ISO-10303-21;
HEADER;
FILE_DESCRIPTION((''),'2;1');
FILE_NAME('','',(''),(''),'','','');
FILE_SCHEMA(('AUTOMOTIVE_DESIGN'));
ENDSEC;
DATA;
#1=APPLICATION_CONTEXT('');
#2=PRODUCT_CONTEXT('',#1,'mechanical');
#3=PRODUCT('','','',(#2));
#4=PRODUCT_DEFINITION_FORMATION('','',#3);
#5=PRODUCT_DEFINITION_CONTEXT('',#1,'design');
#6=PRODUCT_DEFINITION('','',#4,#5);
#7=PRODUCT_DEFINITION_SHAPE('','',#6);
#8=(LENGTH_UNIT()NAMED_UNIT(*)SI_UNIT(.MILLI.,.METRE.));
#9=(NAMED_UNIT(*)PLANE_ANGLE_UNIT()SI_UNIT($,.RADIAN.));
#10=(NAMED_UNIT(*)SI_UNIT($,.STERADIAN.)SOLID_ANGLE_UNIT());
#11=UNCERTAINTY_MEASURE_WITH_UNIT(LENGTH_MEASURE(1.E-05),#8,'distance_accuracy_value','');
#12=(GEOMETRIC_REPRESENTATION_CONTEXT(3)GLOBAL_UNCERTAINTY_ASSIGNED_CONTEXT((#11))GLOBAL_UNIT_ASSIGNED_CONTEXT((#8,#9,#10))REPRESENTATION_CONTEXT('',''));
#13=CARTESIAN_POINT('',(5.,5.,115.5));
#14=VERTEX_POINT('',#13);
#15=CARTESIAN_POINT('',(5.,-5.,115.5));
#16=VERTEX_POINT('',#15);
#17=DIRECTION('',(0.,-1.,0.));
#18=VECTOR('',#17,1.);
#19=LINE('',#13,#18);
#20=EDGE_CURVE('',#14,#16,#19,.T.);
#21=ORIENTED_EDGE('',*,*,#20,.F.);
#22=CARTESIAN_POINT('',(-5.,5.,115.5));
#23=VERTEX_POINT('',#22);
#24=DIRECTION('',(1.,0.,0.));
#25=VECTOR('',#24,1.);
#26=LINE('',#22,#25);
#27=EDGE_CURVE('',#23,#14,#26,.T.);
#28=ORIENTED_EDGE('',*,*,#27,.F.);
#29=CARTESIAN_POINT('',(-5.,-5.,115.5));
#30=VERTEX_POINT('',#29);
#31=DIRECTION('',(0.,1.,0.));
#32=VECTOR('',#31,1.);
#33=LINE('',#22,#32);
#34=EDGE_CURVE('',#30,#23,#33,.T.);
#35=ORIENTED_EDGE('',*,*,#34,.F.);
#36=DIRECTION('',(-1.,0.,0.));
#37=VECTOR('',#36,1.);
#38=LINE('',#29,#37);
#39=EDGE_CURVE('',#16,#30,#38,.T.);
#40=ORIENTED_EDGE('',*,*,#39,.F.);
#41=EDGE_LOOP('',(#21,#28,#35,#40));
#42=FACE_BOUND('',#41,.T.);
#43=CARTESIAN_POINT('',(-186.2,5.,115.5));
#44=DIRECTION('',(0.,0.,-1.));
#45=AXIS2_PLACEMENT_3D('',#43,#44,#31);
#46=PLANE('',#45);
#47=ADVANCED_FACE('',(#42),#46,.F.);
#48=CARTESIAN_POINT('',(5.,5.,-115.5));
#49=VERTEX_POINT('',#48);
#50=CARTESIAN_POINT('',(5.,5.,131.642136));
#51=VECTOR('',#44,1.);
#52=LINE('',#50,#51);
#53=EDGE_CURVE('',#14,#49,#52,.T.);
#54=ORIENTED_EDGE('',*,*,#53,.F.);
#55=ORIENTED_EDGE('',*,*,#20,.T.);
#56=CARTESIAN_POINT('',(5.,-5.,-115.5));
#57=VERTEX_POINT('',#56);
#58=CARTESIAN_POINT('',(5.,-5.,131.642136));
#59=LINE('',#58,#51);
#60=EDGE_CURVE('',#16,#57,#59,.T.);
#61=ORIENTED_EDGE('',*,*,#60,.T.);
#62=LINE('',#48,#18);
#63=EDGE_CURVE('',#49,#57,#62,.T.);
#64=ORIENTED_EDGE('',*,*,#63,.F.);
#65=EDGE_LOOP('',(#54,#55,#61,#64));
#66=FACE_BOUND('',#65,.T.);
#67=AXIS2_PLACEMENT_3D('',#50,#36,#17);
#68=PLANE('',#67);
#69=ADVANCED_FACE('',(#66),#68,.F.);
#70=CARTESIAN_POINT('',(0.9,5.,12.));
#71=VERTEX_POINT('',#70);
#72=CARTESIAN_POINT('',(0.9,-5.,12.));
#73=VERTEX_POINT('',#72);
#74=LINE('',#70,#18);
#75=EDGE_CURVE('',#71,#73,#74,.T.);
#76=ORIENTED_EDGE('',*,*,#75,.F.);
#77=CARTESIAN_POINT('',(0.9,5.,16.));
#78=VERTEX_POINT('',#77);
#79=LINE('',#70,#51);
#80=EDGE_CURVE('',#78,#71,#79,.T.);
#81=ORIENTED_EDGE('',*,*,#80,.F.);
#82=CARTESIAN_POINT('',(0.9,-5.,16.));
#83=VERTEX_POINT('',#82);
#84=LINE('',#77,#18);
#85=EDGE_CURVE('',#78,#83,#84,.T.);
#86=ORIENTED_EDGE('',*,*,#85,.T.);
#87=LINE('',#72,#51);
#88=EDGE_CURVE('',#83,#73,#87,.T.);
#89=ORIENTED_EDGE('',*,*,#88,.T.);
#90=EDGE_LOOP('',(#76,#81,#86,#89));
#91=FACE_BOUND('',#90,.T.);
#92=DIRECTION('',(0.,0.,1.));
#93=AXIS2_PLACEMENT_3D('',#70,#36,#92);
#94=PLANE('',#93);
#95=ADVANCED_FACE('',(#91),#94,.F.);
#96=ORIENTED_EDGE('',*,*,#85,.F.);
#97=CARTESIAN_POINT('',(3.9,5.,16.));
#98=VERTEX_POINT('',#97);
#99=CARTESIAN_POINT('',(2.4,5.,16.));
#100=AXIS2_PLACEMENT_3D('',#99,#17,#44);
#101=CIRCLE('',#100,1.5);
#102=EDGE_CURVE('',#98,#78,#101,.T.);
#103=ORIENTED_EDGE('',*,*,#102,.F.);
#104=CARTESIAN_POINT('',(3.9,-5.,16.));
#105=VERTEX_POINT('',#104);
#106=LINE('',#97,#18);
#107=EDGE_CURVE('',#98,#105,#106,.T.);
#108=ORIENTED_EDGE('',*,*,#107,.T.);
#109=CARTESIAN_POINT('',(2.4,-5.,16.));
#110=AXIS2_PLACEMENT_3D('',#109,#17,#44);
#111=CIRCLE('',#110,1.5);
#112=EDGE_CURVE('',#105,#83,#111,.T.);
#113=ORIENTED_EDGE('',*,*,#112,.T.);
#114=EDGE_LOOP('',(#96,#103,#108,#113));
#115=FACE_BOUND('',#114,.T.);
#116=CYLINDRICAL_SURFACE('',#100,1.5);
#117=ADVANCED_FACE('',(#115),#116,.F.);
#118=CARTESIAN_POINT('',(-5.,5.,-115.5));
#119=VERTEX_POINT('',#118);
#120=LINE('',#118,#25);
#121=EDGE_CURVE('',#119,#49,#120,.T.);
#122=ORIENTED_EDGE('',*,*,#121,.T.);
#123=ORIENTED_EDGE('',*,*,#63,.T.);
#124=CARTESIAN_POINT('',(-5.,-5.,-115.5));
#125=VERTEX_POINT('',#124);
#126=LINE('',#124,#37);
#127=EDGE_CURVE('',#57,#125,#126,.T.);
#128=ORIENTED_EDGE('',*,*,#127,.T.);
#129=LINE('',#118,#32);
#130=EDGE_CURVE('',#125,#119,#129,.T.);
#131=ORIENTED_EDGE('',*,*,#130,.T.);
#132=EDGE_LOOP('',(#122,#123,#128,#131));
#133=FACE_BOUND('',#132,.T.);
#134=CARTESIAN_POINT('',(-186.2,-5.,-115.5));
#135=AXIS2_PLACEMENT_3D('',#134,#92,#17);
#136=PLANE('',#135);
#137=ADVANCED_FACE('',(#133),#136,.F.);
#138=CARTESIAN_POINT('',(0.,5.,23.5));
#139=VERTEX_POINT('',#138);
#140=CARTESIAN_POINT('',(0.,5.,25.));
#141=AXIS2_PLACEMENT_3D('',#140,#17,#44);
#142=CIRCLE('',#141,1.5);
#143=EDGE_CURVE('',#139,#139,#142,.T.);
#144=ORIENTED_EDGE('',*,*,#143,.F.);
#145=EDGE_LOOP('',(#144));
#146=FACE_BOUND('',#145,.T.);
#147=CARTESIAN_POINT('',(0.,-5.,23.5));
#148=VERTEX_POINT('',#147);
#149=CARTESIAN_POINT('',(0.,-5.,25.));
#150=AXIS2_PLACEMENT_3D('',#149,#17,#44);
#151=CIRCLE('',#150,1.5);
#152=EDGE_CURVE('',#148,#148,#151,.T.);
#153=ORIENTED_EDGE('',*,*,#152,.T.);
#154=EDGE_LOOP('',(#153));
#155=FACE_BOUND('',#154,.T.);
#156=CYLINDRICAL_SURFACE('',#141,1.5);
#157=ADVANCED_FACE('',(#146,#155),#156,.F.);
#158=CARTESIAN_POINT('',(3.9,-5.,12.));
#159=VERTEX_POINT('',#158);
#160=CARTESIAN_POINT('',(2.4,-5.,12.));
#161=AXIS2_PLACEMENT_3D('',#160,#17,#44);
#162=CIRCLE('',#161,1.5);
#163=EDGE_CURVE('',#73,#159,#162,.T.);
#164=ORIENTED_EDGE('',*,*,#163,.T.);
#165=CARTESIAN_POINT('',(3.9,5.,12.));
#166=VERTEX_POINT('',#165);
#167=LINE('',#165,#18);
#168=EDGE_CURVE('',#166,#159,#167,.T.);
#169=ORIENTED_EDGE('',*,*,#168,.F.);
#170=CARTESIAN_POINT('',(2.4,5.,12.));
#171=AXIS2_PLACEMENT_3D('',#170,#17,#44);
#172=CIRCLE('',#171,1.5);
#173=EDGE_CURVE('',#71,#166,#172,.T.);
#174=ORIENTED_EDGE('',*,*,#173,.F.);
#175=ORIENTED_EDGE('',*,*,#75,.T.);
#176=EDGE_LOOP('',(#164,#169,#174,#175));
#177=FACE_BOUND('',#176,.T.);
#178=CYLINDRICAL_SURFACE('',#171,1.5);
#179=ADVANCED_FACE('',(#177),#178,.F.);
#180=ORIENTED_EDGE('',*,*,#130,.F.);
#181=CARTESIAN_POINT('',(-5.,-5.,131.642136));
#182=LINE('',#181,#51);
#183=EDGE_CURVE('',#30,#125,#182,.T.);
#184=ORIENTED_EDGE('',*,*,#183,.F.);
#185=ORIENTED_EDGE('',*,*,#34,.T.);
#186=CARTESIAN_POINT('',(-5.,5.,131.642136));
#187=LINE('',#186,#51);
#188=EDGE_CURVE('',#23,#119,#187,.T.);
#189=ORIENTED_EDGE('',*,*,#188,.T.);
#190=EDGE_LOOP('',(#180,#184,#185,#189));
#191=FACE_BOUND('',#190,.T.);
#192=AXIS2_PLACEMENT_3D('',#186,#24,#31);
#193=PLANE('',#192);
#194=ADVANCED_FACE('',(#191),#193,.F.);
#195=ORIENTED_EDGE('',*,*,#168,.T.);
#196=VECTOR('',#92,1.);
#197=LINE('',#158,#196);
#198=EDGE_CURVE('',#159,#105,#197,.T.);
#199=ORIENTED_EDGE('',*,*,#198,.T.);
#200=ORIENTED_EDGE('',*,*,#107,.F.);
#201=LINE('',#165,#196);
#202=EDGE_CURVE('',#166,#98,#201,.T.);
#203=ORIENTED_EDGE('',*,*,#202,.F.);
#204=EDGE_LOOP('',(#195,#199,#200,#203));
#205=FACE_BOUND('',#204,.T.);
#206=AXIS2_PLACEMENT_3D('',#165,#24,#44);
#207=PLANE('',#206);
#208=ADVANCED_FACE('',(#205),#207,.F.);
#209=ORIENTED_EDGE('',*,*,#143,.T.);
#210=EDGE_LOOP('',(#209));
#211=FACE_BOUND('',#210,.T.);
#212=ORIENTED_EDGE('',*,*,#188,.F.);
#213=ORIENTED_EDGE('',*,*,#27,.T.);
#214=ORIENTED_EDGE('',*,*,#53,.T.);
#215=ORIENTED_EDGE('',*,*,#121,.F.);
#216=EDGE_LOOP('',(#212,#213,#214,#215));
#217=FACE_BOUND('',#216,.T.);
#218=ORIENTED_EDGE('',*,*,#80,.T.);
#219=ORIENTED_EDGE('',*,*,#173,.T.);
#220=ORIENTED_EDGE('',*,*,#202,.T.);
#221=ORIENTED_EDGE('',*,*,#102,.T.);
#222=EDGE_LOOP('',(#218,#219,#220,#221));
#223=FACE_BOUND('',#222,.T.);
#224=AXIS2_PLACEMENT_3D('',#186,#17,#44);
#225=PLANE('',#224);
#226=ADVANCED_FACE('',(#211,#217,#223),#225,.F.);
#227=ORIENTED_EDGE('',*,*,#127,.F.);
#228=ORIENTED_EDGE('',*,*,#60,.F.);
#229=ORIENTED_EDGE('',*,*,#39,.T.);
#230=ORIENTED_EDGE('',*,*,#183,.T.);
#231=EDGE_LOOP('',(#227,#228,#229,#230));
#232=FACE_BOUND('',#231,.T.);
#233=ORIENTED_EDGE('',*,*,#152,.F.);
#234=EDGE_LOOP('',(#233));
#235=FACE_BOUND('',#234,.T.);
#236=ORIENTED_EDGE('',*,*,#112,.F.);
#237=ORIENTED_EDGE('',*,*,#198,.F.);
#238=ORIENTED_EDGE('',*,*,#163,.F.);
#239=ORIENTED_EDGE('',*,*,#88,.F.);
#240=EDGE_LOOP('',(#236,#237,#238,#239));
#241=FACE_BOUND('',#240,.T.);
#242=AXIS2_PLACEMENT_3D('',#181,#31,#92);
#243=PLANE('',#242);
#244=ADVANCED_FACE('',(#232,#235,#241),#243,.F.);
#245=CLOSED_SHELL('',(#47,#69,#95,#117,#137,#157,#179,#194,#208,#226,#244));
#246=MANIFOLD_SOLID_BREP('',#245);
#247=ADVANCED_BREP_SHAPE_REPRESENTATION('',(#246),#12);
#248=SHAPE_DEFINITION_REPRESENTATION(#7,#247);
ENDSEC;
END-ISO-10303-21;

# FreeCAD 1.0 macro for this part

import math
import FreeCAD as App
import Part
import Sketcher
Q = App.Units.Quantity


def add_polygon(sketch, points):
    """Adds a closed chain of lines whose ends are joined by coincident constraints."""
    first, n = sketch.GeometryCount, len(points)
    for a, b in zip(points, points[1:] + points[:1]):
        sketch.addGeometry(Part.LineSegment(App.Vector(*a, 0), App.Vector(*b, 0)), False)
    for i in range(n):
        sketch.addConstraint(Sketcher.Constraint("Coincident", first + i, 2, first + (i + 1) % n, 1))

doc = App.newDocument("Part")
body = doc.addObject("PartDesign::Body", "Body")

# Sketch on XY plane
sketch1 = doc.addObject("Sketcher::SketchObject", "Sketch")
body.addObject(sketch1)
sketch1.AttachmentSupport = (doc.XY_Plane, [""])
sketch1.MapMode = "FlatFace"
add_polygon(sketch1, [(-5, 5), (-5, -5), (5, -5), (5, 5)])  # lines 0-3
sketch1.addConstraint([
    Sketcher.Constraint("Vertical", 0),
    Sketcher.Constraint("Horizontal", 1),
    Sketcher.Constraint("Vertical", 2),
    Sketcher.Constraint("Horizontal", 3),
    Sketcher.Constraint("Symmetric", 0, 2, 2, 2, -1, 1),
    Sketcher.Constraint("Equal", 3, 0),
    Sketcher.Constraint("DistanceX", 1, 1, 1, 2, Q("10 mm")),
])
pad1 = doc.addObject("PartDesign::Pad", "Pad")
body.addObject(pad1)
pad1.Profile = sketch1
pad1.Type = "TwoLengths"
pad1.Length = 115.5
pad1.Length2 = 115.5

# Sketch on XZ plane
sketch2 = doc.addObject("Sketcher::SketchObject", "Sketch001")
body.addObject(sketch2)
sketch2.AttachmentSupport = (doc.XZ_Plane, [""])
sketch2.MapMode = "FlatFace"
sketch2.AttachmentOffset = App.Placement(App.Vector(0, 0, 5), App.Rotation())
sketch2.addGeometry(Part.Circle(App.Vector(0, 25, 0), App.Vector(0, 0, 1), 1.5), False)
sketch2.addConstraint([
    Sketcher.Constraint("PointOnObject", 0, 3, -2),
    Sketcher.Constraint("Diameter", 0, Q("3 mm")),
    Sketcher.Constraint("DistanceY", -1, 1, 0, 3, Q("25 mm")),
])
pocket1 = doc.addObject("PartDesign::Pocket", "Pocket")
body.addObject(pocket1)
pocket1.Profile = sketch2
pocket1.Type = "ThroughAll"

# Sketch on XZ plane
sketch3 = doc.addObject("Sketcher::SketchObject", "Sketch002")
body.addObject(sketch3)
sketch3.AttachmentSupport = (doc.XZ_Plane, [""])
sketch3.MapMode = "FlatFace"
sketch3.AttachmentOffset = App.Placement(App.Vector(0, 0, 5), App.Rotation())
sketch3.addGeometry([
    Part.LineSegment(App.Vector(0.9, 16, 0), App.Vector(0.9, 12, 0)),
    Part.ArcOfCircle(Part.Circle(App.Vector(2.4, 12, 0), App.Vector(0, 0, 1), 1.5), math.radians(180), math.radians(360)),
    Part.LineSegment(App.Vector(3.9, 12, 0), App.Vector(3.9, 16, 0)),
    Part.ArcOfCircle(Part.Circle(App.Vector(2.4, 16, 0), App.Vector(0, 0, 1), 1.5), math.radians(0), math.radians(180)),
], False)
sketch3.addConstraint([
    Sketcher.Constraint("Tangent", 0, 2, 1, 1),
    Sketcher.Constraint("Tangent", 1, 2, 2, 1),
    Sketcher.Constraint("Tangent", 2, 2, 3, 1),
    Sketcher.Constraint("Tangent", 3, 2, 0, 1),
    Sketcher.Constraint("Vertical", 0),
    Sketcher.Constraint("Vertical", 2),
    Sketcher.Constraint("Radius", 1, Q("1.5 mm")),
    Sketcher.Constraint("DistanceY", 0, 2, 0, 1, Q("4 mm")),
    Sketcher.Constraint("DistanceY", -1, 1, 1, 3, Q("12 mm")),
    Sketcher.Constraint("DistanceX", -1, 1, 1, 3, Q("2.4 mm")),
])
pocket2 = doc.addObject("PartDesign::Pocket", "Pocket001")
body.addObject(pocket2)
pocket2.Profile = sketch3
pocket2.Type = "ThroughAll"

doc.recompute()
